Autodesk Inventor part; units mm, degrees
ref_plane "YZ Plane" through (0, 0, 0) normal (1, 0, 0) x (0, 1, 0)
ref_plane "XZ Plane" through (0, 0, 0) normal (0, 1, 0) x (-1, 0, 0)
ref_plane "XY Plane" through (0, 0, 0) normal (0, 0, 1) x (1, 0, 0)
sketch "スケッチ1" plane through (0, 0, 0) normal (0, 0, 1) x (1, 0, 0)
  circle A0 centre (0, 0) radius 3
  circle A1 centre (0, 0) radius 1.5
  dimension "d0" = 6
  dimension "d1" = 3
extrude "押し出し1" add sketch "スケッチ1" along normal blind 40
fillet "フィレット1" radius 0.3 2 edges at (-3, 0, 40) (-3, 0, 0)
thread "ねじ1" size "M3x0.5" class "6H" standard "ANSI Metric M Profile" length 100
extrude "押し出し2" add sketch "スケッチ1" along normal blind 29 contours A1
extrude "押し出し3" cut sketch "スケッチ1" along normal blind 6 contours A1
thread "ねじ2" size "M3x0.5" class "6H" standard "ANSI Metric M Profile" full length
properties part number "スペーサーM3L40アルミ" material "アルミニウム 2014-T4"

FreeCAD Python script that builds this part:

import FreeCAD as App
import Part
import Sketcher

V = App.Vector
Q = App.Units.Quantity


def edges_at(feature, points):
    """Names of the edges that pass closest to the given points."""
    edges = feature.Shape.Edges
    near = lambda p: min(range(len(edges)), key=lambda i: edges[i].distToShape(Part.Vertex(*p))[0])
    return sorted({f"Edge{near(p) + 1}" for p in points})

doc = App.newDocument("Part")
body = doc.addObject("PartDesign::Body", "Body")

sketch1 = body.newObject("Sketcher::SketchObject", "Sketch")
sketch1.AttachmentSupport = (doc.getObject("XY_Plane"), [""])
sketch1.MapMode = "FlatFace"
sketch1.addGeometry(Part.Circle(V(0, 0, 0), V(0, 0, 1), 3), False)
sketch1.addGeometry(Part.Circle(V(0, 0, 0), V(0, 0, 1), 1.5), False)
sketch1.addConstraint(Sketcher.Constraint("Coincident", 0, 3, -1, 1))
sketch1.addConstraint(Sketcher.Constraint("Coincident", 1, 3, -1, 1))
sketch1.addConstraint(Sketcher.Constraint("Diameter", 0, Q("6 mm")))
sketch1.addConstraint(Sketcher.Constraint("Diameter", 1, Q("3 mm")))
pad1 = body.newObject("PartDesign::Pad", "Pad")
pad1.Profile = sketch1
pad1.Length = 40
doc.recompute()

fillet = body.newObject("PartDesign::Fillet", "Fillet")
fillet.Base = (pad1, edges_at(pad1, [(-3, 0, 40), (-3, 0, 0)]))
fillet.Radius = 0.3

sketch2 = body.newObject("Sketcher::SketchObject", "Sketch001")
sketch2.AttachmentSupport = (doc.getObject("XY_Plane"), [""])
sketch2.MapMode = "FlatFace"
sketch2.addGeometry(Part.Circle(V(0, 0, 0), V(0, 0, 1), 1.5), False)
sketch2.addConstraint(Sketcher.Constraint("Coincident", 0, 3, -1, 1))
sketch2.addConstraint(Sketcher.Constraint("Diameter", 0, Q("3 mm")))
pad2 = body.newObject("PartDesign::Pad", "Pad001")
pad2.Profile = sketch2
pad2.Length = 29

sketch3 = body.newObject("Sketcher::SketchObject", "Sketch002")
sketch3.AttachmentSupport = (doc.getObject("XY_Plane"), [""])
sketch3.MapMode = "FlatFace"
sketch3.addGeometry(Part.Circle(V(0, 0, 0), V(0, 0, 1), 1.5), False)
sketch3.addConstraint(Sketcher.Constraint("Coincident", 0, 3, -1, 1))
sketch3.addConstraint(Sketcher.Constraint("Diameter", 0, Q("3 mm")))
pocket1 = body.newObject("PartDesign::Pocket", "Pocket")
pocket1.Profile = sketch3
pocket1.Length = 6
pocket1.Reversed = True

doc.recompute()
